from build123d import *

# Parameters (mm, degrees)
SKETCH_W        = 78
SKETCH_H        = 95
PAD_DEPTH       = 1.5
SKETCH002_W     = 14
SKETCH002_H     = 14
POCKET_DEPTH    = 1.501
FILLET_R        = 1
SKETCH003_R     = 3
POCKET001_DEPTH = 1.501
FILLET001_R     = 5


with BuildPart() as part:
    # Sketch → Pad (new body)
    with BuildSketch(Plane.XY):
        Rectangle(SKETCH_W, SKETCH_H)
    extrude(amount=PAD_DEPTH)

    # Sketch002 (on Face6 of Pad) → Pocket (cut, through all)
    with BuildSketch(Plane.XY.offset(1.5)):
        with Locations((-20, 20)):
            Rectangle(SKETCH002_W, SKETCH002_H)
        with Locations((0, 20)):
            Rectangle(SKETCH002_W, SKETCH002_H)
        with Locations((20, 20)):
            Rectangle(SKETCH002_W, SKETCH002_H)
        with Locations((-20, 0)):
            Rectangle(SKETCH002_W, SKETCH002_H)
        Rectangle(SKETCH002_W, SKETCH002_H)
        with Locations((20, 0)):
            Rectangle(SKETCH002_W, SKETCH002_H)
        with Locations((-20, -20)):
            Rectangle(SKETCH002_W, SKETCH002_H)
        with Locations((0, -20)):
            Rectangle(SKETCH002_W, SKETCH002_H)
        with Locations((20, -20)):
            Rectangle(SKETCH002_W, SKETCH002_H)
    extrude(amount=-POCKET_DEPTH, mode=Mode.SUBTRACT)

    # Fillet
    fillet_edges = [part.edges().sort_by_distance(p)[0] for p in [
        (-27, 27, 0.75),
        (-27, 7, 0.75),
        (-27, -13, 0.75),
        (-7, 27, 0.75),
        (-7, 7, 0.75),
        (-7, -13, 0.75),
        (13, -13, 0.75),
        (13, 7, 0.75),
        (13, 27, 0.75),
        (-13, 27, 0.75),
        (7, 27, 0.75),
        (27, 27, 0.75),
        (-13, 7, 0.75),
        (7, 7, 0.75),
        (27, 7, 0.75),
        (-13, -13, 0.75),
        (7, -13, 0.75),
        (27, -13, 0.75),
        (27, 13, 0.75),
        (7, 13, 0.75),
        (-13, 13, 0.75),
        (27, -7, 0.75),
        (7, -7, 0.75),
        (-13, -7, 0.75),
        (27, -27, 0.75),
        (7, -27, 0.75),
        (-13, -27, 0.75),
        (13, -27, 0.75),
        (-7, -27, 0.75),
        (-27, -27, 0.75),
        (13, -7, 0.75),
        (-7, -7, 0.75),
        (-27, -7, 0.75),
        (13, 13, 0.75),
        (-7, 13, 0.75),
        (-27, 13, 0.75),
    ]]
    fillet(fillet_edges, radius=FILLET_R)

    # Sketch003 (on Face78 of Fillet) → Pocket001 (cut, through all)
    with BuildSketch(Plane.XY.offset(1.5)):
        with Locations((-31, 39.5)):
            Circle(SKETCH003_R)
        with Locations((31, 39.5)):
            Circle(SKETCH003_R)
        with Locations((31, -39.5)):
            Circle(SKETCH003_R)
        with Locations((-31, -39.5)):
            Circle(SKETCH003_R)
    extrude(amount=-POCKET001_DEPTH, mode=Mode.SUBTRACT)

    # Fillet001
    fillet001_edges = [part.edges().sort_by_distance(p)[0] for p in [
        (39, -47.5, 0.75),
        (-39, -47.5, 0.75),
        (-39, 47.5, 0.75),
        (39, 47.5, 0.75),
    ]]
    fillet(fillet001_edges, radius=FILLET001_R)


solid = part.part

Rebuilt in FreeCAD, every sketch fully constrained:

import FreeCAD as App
import Part
import Sketcher
from FreeCAD import Vector


def edges_at(feature, points):
    """Names of the edges that pass closest to the given points."""
    edges = feature.Shape.Edges
    near = lambda p: min(range(len(edges)), key=lambda i: edges[i].distToShape(Part.Vertex(*p))[0])
    return sorted({f"Edge{near(p) + 1}" for p in points})


def add_polygon(sketch, points):
    """Adds a closed chain of lines whose ends are joined by coincident constraints."""
    first, n = sketch.GeometryCount, len(points)
    for a, b in zip(points, points[1:] + points[:1]):
        sketch.addGeometry(Part.LineSegment(App.Vector(*a, 0), App.Vector(*b, 0)), False)
    for i in range(n):
        sketch.addConstraint(Sketcher.Constraint("Coincident", first + i, 2, first + (i + 1) % n, 1))

doc = App.newDocument("Part")
body = doc.addObject("PartDesign::Body", "Body")

sketch1 = body.newObject("Sketcher::SketchObject", "Sketch")
sketch1.AttachmentSupport = (doc.getObject("XY_Plane"), [""])
sketch1.MapMode = "FlatFace"
add_polygon(sketch1, [(-39, 48), (-39, -48), (39, -48), (39, 48)])
sketch1.addConstraint([
    Sketcher.Constraint("Vertical", 0),
    Sketcher.Constraint("Horizontal", 1),
    Sketcher.Constraint("Vertical", 2),
    Sketcher.Constraint("Horizontal", 3),
    Sketcher.Constraint("Symmetric", 0, 2, 2, 2, -1, 1),
    Sketcher.Constraint("DistanceX", 1, 1, 1, 2, 78.0),
    Sketcher.Constraint("DistanceY", 0, 2, 0, 1, 95.0),
])
pad1 = body.newObject("PartDesign::Pad", "Pad")
pad1.Profile = sketch1
pad1.Length = 1.5

sketch2 = body.newObject("Sketcher::SketchObject", "Sketch001")
sketch2.AttachmentSupport = (doc.getObject("XY_Plane"), [""])
sketch2.MapMode = "FlatFace"
sketch2.AttachmentOffset = App.Placement(Vector(0, 0, 1.5), App.Rotation())
add_polygon(sketch2, [(-27, 27), (-27, 13), (-13, 13), (-13, 27)])
add_polygon(sketch2, [(-7, 27), (-7, 13), (7, 13), (7, 27)])
add_polygon(sketch2, [(13, 27), (13, 13), (27, 13), (27, 27)])
add_polygon(sketch2, [(-27, 7), (-27, -7), (-13, -7), (-13, 7)])
add_polygon(sketch2, [(-7, 7), (-7, -7), (7, -7), (7, 7)])
add_polygon(sketch2, [(13, 7), (13, -7), (27, -7), (27, 7)])
add_polygon(sketch2, [(-27, -13), (-27, -27), (-13, -27), (-13, -13)])
add_polygon(sketch2, [(-7, -13), (-7, -27), (7, -27), (7, -13)])
add_polygon(sketch2, [(13, -13), (13, -27), (27, -27), (27, -13)])
sketch2.addConstraint([
    Sketcher.Constraint("Vertical", 0),
    Sketcher.Constraint("Horizontal", 1),
    Sketcher.Constraint("Vertical", 2),
    Sketcher.Constraint("Horizontal", 3),
    Sketcher.Constraint("Vertical", 4),
    Sketcher.Constraint("Horizontal", 5),
    Sketcher.Constraint("Vertical", 6),
    Sketcher.Constraint("Horizontal", 7),
    Sketcher.Constraint("Vertical", 8),
    Sketcher.Constraint("Horizontal", 9),
    Sketcher.Constraint("Vertical", 10),
    Sketcher.Constraint("Horizontal", 11),
    Sketcher.Constraint("Vertical", 12),
    Sketcher.Constraint("Horizontal", 13),
    Sketcher.Constraint("Vertical", 14),
    Sketcher.Constraint("Horizontal", 15),
    Sketcher.Constraint("Vertical", 16),
    Sketcher.Constraint("Horizontal", 17),
    Sketcher.Constraint("Vertical", 18),
    Sketcher.Constraint("Horizontal", 19),
    Sketcher.Constraint("Vertical", 20),
    Sketcher.Constraint("Horizontal", 21),
    Sketcher.Constraint("Vertical", 22),
    Sketcher.Constraint("Horizontal", 23),
    Sketcher.Constraint("Vertical", 24),
    Sketcher.Constraint("Horizontal", 25),
    Sketcher.Constraint("Vertical", 26),
    Sketcher.Constraint("Horizontal", 27),
    Sketcher.Constraint("Vertical", 28),
    Sketcher.Constraint("Horizontal", 29),
    Sketcher.Constraint("Vertical", 30),
    Sketcher.Constraint("Horizontal", 31),
    Sketcher.Constraint("Vertical", 32),
    Sketcher.Constraint("Horizontal", 33),
    Sketcher.Constraint("Vertical", 34),
    Sketcher.Constraint("Horizontal", 35),
    Sketcher.Constraint("Symmetric", 16, 2, 18, 2, -1, 1),
    Sketcher.Constraint("Symmetric", 14, 2, 20, 2, -1, 1),
    Sketcher.Constraint("Symmetric", 12, 2, 22, 2, -1, 1),
    Sketcher.Constraint("Symmetric", 10, 2, 24, 2, -1, 1),
    Sketcher.Constraint("Symmetric", 8, 2, 26, 2, -1, 1),
    Sketcher.Constraint("Symmetric", 6, 2, 28, 2, -1, 1),
    Sketcher.Constraint("Symmetric", 4, 2, 30, 2, -1, 1),
    Sketcher.Constraint("Symmetric", 2, 2, 32, 2, -1, 1),
    Sketcher.Constraint("Symmetric", 0, 2, 34, 2, -1, 1),
    Sketcher.Constraint("Symmetric", 1, 2, 8, 2, -2),
    Sketcher.Constraint("Symmetric", 3, 2, 10, 2, -2),
    Sketcher.Constraint("Horizontal", 1, 2, 4, 2),
    Sketcher.Constraint("Horizontal", 3, 2, 6, 2),
    Sketcher.Constraint("Horizontal", 13, 2, 16, 2),
    Sketcher.Constraint("Horizontal", 15, 2, 18, 2),
    Sketcher.Constraint("Vertical", 3, 2, 12, 2),
    Sketcher.Constraint("Vertical", 2, 2, 13, 2),
    Sketcher.Constraint("Vertical", 7, 2, 16, 2),
    Sketcher.Constraint("Vertical", 6, 2, 17, 2),
    Sketcher.Constraint("Equal", 3, 5),
    Sketcher.Constraint("Equal", 35, 0),
    Sketcher.Constraint("Equal", 10, 12),
    Sketcher.Constraint("DistanceX", 1, 1, 1, 2, 14.0),
    Sketcher.Constraint("DistanceX", 0, 2, -1, 1, 27.0),
    Sketcher.Constraint("DistanceY", -1, 1, 0, 2, 13.0),
])
pocket1 = body.newObject("PartDesign::Pocket", "Pocket")
pocket1.Profile = sketch2
pocket1.Type = "ThroughAll"
doc.recompute()

fillet = body.newObject("PartDesign::Fillet", "Fillet")
fillet.Base = (pocket1, edges_at(pocket1, [
    (-27, 27, 0.75),
    (-27, 7, 0.75),
    (-27, -13, 0.75),
    (-7, 27, 0.75),
    (-7, 7, 0.75),
    (-7, -13, 0.75),
    (13, -13, 0.75),
    (13, 7, 0.75),
    (13, 27, 0.75),
    (-13, 27, 0.75),
    (7, 27, 0.75),
    (27, 27, 0.75),
    (-13, 7, 0.75),
    (7, 7, 0.75),
    (27, 7, 0.75),
    (-13, -13, 0.75),
    (7, -13, 0.75),
    (27, -13, 0.75),
    (27, 13, 0.75),
    (7, 13, 0.75),
    (-13, 13, 0.75),
    (27, -7, 0.75),
    (7, -7, 0.75),
    (-13, -7, 0.75),
    (27, -27, 0.75),
    (7, -27, 0.75),
    (-13, -27, 0.75),
    (13, -27, 0.75),
    (-7, -27, 0.75),
    (-27, -27, 0.75),
    (13, -7, 0.75),
    (-7, -7, 0.75),
    (-27, -7, 0.75),
    (13, 13, 0.75),
    (-7, 13, 0.75),
    (-27, 13, 0.75),
]))
fillet.Radius = 1

sketch3 = body.newObject("Sketcher::SketchObject", "Sketch002")
sketch3.AttachmentSupport = (doc.getObject("XY_Plane"), [""])
sketch3.MapMode = "FlatFace"
sketch3.AttachmentOffset = App.Placement(Vector(0, 0, 1.5), App.Rotation())
sketch3.addGeometry([
    Part.Circle(Vector(-31, 39.5, 0), Vector(0, 0, 1), 3),
    Part.Circle(Vector(31, 39.5, 0), Vector(0, 0, 1), 3),
    Part.Circle(Vector(31, -39.5, 0), Vector(0, 0, 1), 3),
    Part.Circle(Vector(-31, -39.5, 0), Vector(0, 0, 1), 3),
], False)
sketch3.addConstraint([
    Sketcher.Constraint("Equal", 0, 1),
    Sketcher.Constraint("Equal", 1, 2),
    Sketcher.Constraint("Equal", 2, 3),
    Sketcher.Constraint("Symmetric", 0, 3, 2, 3, -1, 1),
    Sketcher.Constraint("Symmetric", 1, 3, 3, 3, -1, 1),
    Sketcher.Constraint("Symmetric", 0, 3, 1, 3, -2),
    Sketcher.Constraint("Diameter", 0, 6.0),
    Sketcher.Constraint("DistanceX", 0, 3, -1, 1, 31.0),
    Sketcher.Constraint("DistanceY", 2, 3, 1, 3, 79.0),
])
pocket2 = body.newObject("PartDesign::Pocket", "Pocket001")
pocket2.Profile = sketch3
pocket2.Type = "ThroughAll"
doc.recompute()

fillet2 = body.newObject("PartDesign::Fillet", "Fillet001")
fillet2.Base = (pocket2, edges_at(pocket2, [
    (39, -47.5, 0.75),
    (-39, -47.5, 0.75),
    (-39, 47.5, 0.75),
    (39, 47.5, 0.75),
]))
fillet2.Radius = 5

doc.recompute()
